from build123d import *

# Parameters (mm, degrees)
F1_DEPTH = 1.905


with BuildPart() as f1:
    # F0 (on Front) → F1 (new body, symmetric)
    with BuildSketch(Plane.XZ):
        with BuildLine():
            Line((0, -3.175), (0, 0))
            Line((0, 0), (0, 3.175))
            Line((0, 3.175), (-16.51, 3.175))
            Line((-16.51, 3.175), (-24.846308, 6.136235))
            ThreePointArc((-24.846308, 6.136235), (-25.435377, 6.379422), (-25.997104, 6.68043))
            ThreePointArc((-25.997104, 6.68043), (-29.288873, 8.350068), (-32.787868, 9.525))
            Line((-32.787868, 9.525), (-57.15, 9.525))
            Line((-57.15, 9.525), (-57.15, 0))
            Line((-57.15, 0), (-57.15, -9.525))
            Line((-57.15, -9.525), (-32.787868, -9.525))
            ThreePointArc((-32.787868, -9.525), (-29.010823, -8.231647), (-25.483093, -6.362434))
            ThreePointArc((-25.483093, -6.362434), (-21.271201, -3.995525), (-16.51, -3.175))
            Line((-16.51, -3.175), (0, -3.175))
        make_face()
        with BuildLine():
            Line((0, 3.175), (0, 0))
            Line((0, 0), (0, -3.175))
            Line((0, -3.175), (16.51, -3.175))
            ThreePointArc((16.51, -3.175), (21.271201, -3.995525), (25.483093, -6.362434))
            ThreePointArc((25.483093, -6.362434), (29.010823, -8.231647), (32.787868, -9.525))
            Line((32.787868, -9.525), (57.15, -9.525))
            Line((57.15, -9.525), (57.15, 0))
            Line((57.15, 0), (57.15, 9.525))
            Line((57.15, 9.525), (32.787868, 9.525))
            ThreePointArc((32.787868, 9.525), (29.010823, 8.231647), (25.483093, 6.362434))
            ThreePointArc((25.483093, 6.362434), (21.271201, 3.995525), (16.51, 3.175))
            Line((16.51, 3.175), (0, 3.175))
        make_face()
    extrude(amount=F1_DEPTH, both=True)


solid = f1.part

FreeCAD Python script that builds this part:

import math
import FreeCAD as App
import Part
import Sketcher

V = App.Vector
Q = App.Units.Quantity

doc = App.newDocument("Part")
body = doc.addObject("PartDesign::Body", "Body")

sketch1 = body.newObject("Sketcher::SketchObject", "Sketch")
sketch1.AttachmentSupport = (doc.getObject("XZ_Plane"), [""])
sketch1.MapMode = "FlatFace"
sketch1.addGeometry(Part.LineSegment(V(-16.51, 3.175, 0), V(-24.846308, 6.136235, 0)), False)
sketch1.addGeometry(Part.ArcOfCircle(Part.Circle(V(-22.720786, 12.119902, 0), V(0, 0, 1), 6.349969), math.radians(-121.061512), math.radians(-109.556085)), False)
sketch1.addGeometry(Part.ArcOfCircle(Part.Circle(V(-39.102442, -15.077596, 0), V(0, 0, 1), 25.400031), math.radians(58.93852), math.radians(75.605024)), False)
sketch1.addGeometry(Part.LineSegment(V(-32.787868, 9.525, 0), V(-57.15, 9.525, 0)), False)
sketch1.addGeometry(Part.LineSegment(V(-57.15, 9.525, 0), V(-57.15, -9.525, 0)), False)
sketch1.addGeometry(Part.LineSegment(V(-57.15, -9.525, 0), V(-32.787868, -9.525, 0)), False)
sketch1.addGeometry(Part.ArcOfCircle(Part.Circle(V(-39.102431, 15.077568, 0), V(0, 0, 1), 25.400001), math.radians(-75.605031), math.radians(-57.575051)), False)
sketch1.addGeometry(Part.ArcOfCircle(Part.Circle(V(-16.51, -17.399003, 0), V(0, 0, 1), 14.224003), math.radians(90.000001), math.radians(129.112245)), False)
sketch1.addGeometry(Part.LineSegment(V(-16.51, -3.175, 0), V(16.51, -3.175, 0)), False)
sketch1.addGeometry(Part.ArcOfCircle(Part.Circle(V(16.51, -17.399003, 0), V(0, 0, 1), 14.224003), math.radians(50.887755), math.radians(89.999999)), False)
sketch1.addGeometry(Part.ArcOfCircle(Part.Circle(V(39.102431, 15.077568, 0), V(0, 0, 1), 25.400001), math.radians(-122.424949), math.radians(-104.394969)), False)
sketch1.addGeometry(Part.LineSegment(V(32.787868, -9.525, 0), V(57.15, -9.525, 0)), False)
sketch1.addGeometry(Part.LineSegment(V(57.15, -9.525, 0), V(57.15, 9.525, 0)), False)
sketch1.addGeometry(Part.LineSegment(V(57.15, 9.525, 0), V(32.787868, 9.525, 0)), False)
sketch1.addGeometry(Part.ArcOfCircle(Part.Circle(V(39.102431, -15.077568, 0), V(0, 0, 1), 25.400001), math.radians(104.394969), math.radians(122.424949)), False)
sketch1.addGeometry(Part.ArcOfCircle(Part.Circle(V(16.51, 17.399003, 0), V(0, 0, 1), 14.224003), math.radians(-89.999999), math.radians(-50.887755)), False)
sketch1.addGeometry(Part.LineSegment(V(16.51, 3.175, 0), V(-16.51, 3.175, 0)), False)
sketch1.addConstraint(Sketcher.Constraint("Tangent", 0, 2, 1, 2))
sketch1.addConstraint(Sketcher.Constraint("Tangent", 1, 1, 2, 1))
sketch1.addConstraint(Sketcher.Constraint("Coincident", 2, 2, 3, 1))
sketch1.addConstraint(Sketcher.Constraint("Coincident", 3, 2, 4, 1))
sketch1.addConstraint(Sketcher.Constraint("Coincident", 4, 2, 5, 1))
sketch1.addConstraint(Sketcher.Constraint("Coincident", 5, 2, 6, 1))
sketch1.addConstraint(Sketcher.Constraint("Coincident", 6, 2, 7, 2))
sketch1.addConstraint(Sketcher.Constraint("Tangent", 7, 1, 8, 1))
sketch1.addConstraint(Sketcher.Constraint("Tangent", 8, 2, 9, 2))
sketch1.addConstraint(Sketcher.Constraint("Coincident", 9, 1, 10, 1))
sketch1.addConstraint(Sketcher.Constraint("Coincident", 10, 2, 11, 1))
sketch1.addConstraint(Sketcher.Constraint("Coincident", 11, 2, 12, 1))
sketch1.addConstraint(Sketcher.Constraint("Coincident", 12, 2, 13, 1))
sketch1.addConstraint(Sketcher.Constraint("Coincident", 13, 2, 14, 1))
sketch1.addConstraint(Sketcher.Constraint("Coincident", 14, 2, 15, 2))
sketch1.addConstraint(Sketcher.Constraint("Tangent", 15, 1, 16, 1))
sketch1.addConstraint(Sketcher.Constraint("Coincident", 16, 2, 0, 1))
sketch1.addConstraint(Sketcher.Constraint("Horizontal", 3))
sketch1.addConstraint(Sketcher.Constraint("Vertical", 4))
sketch1.addConstraint(Sketcher.Constraint("Horizontal", 5))
sketch1.addConstraint(Sketcher.Constraint("Horizontal", 8))
sketch1.addConstraint(Sketcher.Constraint("Horizontal", 11))
sketch1.addConstraint(Sketcher.Constraint("Vertical", 12))
sketch1.addConstraint(Sketcher.Constraint("Horizontal", 13))
sketch1.addConstraint(Sketcher.Constraint("Horizontal", 16))
sketch1.addConstraint(Sketcher.Constraint("Equal", 7, 9))
sketch1.addConstraint(Sketcher.Constraint("Equal", 6, 10))
sketch1.addConstraint(Sketcher.Constraint("Equal", 10, 14))
sketch1.addConstraint(Sketcher.Constraint("Equal", 9, 15))
sketch1.addConstraint(Sketcher.Constraint("Symmetric", 6, 3, 14, 3, -1, 1))
sketch1.addConstraint(Sketcher.Constraint("Symmetric", 7, 3, 15, 3, -1, 1))
sketch1.addConstraint(Sketcher.Constraint("Symmetric", 2, 2, 10, 2, -1, 1))
sketch1.addConstraint(Sketcher.Constraint("Symmetric", 4, 2, 12, 2, -1, 1))
sketch1.addConstraint(Sketcher.Constraint("Symmetric", 6, 3, 10, 3, -2))
sketch1.addConstraint(Sketcher.Constraint("Horizontal", 6, 2, 9, 1))
sketch1.addConstraint(Sketcher.Constraint("Horizontal", 5, 2, 10, 2))
sketch1.addConstraint(Sketcher.Constraint("Vertical", 7, 1, 16, 2))
sketch1.addConstraint(Sketcher.Constraint("Radius", 6, Q("1 in")))
sketch1.addConstraint(Sketcher.Constraint("Radius", 7, Q("0.5600001 in")))
sketch1.addConstraint(Sketcher.Constraint("DistanceX", 8, 1, 8, 2, Q("1.3 in")))
sketch1.addConstraint(Sketcher.Constraint("DistanceY", 4, 2, 4, 1, Q("0.75 in")))
sketch1.addConstraint(Sketcher.Constraint("DistanceX", 8, 2, 11, 2, Q("1.6 in")))
sketch1.addConstraint(Sketcher.Constraint("DistanceY", 8, 2, 13, 2, Q("0.5 in")))
sketch1.addConstraint(Sketcher.Constraint("Radius", 1, 6.349969))
sketch1.addConstraint(Sketcher.Constraint("Radius", 2, 25.400031))
sketch1.addConstraint(Sketcher.Constraint("DistanceX", 3, 2, 3, 1, 24.362132))
sketch1.addConstraint(Sketcher.Constraint("DistanceY", -1, 1, 1, 3, 12.119902))
sketch1.addConstraint(Sketcher.Constraint("DistanceY", 2, 3, 1, 3, 27.197498))
sketch1.addConstraint(Sketcher.Constraint("DistanceY", 9, 1, 10, 3, 21.440002))
pad1 = body.newObject("PartDesign::Pad", "Pad")
pad1.Profile = sketch1
pad1.Length = Q("0.15 in")
pad1.Midplane = True

doc.recompute()
